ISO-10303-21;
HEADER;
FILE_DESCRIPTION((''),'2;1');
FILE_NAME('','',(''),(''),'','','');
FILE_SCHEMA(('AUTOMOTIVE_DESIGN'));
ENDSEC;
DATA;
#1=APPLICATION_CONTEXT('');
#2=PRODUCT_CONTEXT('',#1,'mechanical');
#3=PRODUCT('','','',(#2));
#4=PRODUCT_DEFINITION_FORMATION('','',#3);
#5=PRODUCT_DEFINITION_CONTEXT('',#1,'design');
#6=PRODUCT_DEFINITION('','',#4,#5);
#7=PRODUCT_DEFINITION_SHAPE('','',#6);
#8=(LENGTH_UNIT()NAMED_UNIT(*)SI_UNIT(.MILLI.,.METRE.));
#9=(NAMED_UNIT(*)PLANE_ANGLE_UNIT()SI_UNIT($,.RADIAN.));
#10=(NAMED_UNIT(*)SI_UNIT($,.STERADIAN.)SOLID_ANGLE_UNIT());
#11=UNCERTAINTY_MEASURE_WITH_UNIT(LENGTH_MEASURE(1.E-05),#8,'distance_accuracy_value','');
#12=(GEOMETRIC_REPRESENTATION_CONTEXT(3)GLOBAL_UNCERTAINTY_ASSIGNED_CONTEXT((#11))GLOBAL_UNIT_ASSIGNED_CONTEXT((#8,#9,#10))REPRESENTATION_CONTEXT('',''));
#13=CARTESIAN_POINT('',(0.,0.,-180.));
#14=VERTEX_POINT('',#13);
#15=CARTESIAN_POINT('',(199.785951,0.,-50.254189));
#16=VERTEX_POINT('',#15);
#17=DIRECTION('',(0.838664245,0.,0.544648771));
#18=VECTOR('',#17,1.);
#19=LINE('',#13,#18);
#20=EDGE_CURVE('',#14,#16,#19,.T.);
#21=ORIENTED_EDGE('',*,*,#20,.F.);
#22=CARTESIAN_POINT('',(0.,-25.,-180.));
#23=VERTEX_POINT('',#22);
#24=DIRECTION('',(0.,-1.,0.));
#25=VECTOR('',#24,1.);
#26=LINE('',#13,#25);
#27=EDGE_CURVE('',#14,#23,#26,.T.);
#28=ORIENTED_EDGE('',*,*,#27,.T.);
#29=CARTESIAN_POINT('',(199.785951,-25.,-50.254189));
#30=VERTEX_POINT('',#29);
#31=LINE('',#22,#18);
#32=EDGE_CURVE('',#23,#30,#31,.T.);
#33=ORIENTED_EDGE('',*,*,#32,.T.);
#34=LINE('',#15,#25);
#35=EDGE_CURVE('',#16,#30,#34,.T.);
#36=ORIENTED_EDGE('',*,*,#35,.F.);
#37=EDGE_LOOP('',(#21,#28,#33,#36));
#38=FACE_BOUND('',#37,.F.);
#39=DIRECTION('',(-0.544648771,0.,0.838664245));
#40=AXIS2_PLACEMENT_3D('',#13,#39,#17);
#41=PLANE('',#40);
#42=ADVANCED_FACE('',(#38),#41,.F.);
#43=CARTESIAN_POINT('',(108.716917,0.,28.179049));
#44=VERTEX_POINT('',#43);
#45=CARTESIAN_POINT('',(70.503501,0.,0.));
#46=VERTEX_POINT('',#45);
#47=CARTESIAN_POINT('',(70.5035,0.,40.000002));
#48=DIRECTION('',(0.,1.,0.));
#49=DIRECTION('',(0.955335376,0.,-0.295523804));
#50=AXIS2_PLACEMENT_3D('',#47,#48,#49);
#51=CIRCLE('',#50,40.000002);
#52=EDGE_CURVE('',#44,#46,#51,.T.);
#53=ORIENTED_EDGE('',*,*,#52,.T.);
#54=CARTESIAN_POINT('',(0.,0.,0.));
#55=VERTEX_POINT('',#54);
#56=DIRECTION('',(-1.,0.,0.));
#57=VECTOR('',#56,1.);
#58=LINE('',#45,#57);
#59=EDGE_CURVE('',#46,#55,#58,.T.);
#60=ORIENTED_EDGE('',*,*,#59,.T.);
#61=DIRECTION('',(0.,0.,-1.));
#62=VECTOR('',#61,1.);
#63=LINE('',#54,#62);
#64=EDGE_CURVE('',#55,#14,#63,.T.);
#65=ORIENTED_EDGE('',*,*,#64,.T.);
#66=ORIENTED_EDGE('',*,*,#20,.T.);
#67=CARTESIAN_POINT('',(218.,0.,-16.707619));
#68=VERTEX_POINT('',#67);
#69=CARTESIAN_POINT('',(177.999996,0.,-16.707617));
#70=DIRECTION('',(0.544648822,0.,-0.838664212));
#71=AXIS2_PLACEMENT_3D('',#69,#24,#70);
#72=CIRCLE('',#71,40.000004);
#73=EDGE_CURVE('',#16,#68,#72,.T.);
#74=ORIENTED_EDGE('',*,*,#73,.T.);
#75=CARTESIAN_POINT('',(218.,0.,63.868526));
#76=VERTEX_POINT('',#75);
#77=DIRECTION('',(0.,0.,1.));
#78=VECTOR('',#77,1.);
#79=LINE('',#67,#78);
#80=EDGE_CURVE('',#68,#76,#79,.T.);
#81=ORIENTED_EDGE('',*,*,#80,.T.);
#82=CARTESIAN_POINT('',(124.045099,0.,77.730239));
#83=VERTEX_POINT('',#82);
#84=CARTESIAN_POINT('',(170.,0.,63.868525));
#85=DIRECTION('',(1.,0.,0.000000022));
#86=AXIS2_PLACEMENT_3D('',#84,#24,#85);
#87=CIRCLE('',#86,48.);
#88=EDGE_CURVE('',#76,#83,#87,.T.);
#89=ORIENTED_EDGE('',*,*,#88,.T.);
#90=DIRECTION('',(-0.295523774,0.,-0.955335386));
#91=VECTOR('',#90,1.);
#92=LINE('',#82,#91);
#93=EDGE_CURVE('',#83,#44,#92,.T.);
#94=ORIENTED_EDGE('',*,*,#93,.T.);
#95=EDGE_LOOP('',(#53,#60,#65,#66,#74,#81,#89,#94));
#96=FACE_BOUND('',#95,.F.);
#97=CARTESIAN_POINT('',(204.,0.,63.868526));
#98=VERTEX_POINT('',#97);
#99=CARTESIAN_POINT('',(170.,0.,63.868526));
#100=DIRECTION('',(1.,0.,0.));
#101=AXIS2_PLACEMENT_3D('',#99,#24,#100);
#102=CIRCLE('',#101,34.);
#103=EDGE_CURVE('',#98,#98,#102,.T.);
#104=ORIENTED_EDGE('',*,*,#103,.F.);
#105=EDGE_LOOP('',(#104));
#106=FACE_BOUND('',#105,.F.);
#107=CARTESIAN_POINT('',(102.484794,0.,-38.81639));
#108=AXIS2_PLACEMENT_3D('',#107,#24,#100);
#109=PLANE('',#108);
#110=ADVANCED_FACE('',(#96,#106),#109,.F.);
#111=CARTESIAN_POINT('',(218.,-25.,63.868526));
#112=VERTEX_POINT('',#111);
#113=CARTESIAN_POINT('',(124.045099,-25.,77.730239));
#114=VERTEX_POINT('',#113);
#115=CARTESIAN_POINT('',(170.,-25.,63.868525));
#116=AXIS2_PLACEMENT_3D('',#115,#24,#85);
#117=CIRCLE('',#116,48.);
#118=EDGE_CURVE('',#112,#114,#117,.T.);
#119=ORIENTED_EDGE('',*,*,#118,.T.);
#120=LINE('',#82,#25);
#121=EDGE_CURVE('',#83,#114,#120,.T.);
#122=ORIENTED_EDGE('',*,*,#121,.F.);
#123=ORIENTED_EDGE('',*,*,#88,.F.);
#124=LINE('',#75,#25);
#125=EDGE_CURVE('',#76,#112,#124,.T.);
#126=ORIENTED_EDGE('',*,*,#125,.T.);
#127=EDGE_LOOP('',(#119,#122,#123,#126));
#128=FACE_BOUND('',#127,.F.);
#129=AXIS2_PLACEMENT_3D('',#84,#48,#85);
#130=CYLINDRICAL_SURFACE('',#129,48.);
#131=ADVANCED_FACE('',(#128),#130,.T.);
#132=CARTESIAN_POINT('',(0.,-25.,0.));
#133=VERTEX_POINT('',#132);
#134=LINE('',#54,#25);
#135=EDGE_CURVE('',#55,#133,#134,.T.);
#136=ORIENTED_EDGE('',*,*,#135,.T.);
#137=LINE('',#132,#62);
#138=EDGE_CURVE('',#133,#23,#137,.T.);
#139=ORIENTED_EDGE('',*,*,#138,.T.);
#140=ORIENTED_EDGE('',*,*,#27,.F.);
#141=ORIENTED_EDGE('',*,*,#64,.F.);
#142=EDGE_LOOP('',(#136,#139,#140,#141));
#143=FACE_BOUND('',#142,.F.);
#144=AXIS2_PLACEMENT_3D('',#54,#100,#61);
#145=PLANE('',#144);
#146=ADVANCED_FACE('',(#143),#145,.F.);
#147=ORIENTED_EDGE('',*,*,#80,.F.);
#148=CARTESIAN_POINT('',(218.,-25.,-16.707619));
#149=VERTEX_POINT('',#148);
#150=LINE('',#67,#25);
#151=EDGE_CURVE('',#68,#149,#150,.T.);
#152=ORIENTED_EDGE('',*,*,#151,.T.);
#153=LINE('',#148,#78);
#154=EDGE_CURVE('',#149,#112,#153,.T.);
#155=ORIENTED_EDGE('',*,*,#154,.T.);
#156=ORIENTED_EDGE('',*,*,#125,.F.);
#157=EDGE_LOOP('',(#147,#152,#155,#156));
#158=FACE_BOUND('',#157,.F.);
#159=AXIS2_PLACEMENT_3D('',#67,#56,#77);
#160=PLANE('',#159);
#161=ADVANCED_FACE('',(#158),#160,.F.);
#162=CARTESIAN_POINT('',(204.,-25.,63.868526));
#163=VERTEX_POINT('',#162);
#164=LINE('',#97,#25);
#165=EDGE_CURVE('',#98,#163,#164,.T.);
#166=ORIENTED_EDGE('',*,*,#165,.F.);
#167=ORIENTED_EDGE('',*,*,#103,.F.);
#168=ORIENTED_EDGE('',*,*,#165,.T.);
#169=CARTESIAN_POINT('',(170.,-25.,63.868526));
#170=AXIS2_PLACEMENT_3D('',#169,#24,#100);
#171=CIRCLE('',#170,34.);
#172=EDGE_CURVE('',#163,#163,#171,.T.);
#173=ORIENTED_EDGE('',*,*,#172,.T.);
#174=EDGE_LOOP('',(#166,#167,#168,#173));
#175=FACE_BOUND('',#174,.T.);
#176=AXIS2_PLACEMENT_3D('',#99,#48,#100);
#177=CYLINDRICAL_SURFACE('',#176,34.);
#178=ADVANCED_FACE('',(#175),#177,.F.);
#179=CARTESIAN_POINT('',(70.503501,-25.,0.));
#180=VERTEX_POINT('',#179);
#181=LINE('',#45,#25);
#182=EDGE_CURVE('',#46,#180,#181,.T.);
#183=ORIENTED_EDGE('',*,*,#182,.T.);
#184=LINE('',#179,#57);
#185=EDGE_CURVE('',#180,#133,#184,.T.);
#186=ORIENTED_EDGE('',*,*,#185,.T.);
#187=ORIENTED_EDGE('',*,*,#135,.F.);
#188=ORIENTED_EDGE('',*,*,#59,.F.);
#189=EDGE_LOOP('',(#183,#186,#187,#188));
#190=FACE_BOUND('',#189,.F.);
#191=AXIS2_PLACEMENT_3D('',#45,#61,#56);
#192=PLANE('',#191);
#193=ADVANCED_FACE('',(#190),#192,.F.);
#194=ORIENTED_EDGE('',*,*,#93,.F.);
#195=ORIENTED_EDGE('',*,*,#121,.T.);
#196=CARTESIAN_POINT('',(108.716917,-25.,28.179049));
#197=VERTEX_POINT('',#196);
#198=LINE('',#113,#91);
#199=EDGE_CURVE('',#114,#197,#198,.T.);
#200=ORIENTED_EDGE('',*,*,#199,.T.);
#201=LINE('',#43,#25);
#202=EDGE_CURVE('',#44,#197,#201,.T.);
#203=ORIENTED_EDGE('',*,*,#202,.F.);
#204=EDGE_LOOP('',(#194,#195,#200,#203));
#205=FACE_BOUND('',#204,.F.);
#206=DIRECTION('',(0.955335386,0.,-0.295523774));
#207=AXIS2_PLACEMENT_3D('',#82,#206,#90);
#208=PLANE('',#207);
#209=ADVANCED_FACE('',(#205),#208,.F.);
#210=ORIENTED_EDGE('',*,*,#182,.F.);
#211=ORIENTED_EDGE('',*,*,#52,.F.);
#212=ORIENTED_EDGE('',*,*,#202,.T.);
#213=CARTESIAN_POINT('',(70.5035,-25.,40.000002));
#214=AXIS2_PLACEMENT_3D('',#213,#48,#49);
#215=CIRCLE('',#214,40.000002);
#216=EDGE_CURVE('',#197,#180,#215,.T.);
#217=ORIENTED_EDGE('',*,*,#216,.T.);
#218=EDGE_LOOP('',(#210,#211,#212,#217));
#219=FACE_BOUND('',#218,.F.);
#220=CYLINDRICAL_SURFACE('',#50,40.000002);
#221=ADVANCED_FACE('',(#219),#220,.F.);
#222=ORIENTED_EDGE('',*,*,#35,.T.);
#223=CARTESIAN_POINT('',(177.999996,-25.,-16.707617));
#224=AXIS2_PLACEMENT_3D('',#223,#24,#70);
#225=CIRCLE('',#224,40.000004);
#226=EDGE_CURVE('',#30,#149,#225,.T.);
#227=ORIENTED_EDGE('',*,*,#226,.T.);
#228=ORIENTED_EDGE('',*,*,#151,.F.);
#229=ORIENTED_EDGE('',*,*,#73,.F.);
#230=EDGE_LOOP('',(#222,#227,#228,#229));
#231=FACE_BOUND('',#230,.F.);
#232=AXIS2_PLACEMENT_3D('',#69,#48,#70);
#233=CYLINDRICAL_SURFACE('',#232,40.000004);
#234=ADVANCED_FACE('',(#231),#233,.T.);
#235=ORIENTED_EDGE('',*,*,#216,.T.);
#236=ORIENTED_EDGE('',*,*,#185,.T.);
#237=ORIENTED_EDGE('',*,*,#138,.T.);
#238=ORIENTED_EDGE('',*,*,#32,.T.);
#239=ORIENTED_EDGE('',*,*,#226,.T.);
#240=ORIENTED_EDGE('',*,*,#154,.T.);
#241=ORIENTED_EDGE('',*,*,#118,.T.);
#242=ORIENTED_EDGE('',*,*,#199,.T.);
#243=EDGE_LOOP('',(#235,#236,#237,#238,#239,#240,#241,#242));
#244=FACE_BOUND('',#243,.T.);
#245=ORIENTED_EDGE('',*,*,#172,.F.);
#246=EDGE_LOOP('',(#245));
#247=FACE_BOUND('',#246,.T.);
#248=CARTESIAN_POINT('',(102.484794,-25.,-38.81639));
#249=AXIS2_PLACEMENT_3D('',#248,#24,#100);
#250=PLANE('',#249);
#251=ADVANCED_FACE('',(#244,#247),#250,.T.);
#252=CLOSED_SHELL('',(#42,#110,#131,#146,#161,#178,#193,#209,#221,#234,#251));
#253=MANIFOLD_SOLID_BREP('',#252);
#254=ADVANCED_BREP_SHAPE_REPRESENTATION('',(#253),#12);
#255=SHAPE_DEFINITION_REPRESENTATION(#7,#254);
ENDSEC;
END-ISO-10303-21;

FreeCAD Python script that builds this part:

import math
import FreeCAD as App
import Part
import Sketcher
from FreeCAD import Vector

doc = App.newDocument("Part")
body = doc.addObject("PartDesign::Body", "Body")

sketch1 = doc.addObject("Sketcher::SketchObject", "Sketch")
body.addObject(sketch1)
sketch1.AttachmentSupport = (doc.XZ_Plane, [""])
sketch1.MapMode = "FlatFace"
sketch1.addGeometry(Part.LineSegment(Vector(71, 0, 0), Vector(0, 0, 0)), False)
sketch1.addGeometry(Part.LineSegment(Vector(0, 0, 0), Vector(0, -180, 0)), False)
sketch1.addGeometry(Part.LineSegment(Vector(0, -180, 0), Vector(200, -50, 0)), False)
sketch1.addGeometry(Part.ArcOfCircle(Part.Circle(Vector(178, -17, 0), Vector(0, 0, 1), 40), math.radians(-57), math.radians(0)), False)
sketch1.addGeometry(Part.LineSegment(Vector(218, -17, 0), Vector(218, 64, 0)), False)
sketch1.addGeometry(Part.ArcOfCircle(Part.Circle(Vector(170, 64, 0), Vector(0, 0, 1), 48), math.radians(0), math.radians(163)), False)
sketch1.addGeometry(Part.LineSegment(Vector(124, 78, 0), Vector(109, 28, 0)), False)
sketch1.addGeometry(Part.ArcOfCircle(Part.Circle(Vector(71, 40, 0), Vector(0, 0, 1), 40), math.radians(-90), math.radians(-17)), False)
sketch1.addGeometry(Part.Circle(Vector(170, 64, 0), Vector(0, 0, 1), 34), False)
sketch1.addConstraint(Sketcher.Constraint("Coincident", 0, 2, 1, 1))
sketch1.addConstraint(Sketcher.Constraint("Coincident", 1, 2, 2, 1))
sketch1.addConstraint(Sketcher.Constraint("Tangent", 2, 2, 3, 1))
sketch1.addConstraint(Sketcher.Constraint("Tangent", 3, 2, 4, 1))
sketch1.addConstraint(Sketcher.Constraint("Tangent", 4, 2, 5, 1))
sketch1.addConstraint(Sketcher.Constraint("Coincident", 5, 2, 6, 1))
sketch1.addConstraint(Sketcher.Constraint("Tangent", 6, 2, 7, 2))
sketch1.addConstraint(Sketcher.Constraint("Tangent", 7, 1, 0, 1))
sketch1.addConstraint(Sketcher.Constraint("Horizontal", 0))
sketch1.addConstraint(Sketcher.Constraint("Vertical", 1))
sketch1.addConstraint(Sketcher.Constraint("Vertical", 4))
sketch1.addConstraint(Sketcher.Constraint("Coincident", 0, 2, -1, 1))
sketch1.addConstraint(Sketcher.Constraint("Coincident", 8, 3, 5, 3))
sketch1.addConstraint(Sketcher.Constraint("Diameter", 8, 68.0))
sketch1.addConstraint(Sketcher.Constraint("Radius", 5, 48.0))
sketch1.addConstraint(Sketcher.Constraint("Radius", 7, 40.000002))
sketch1.addConstraint(Sketcher.Constraint("DistanceY", 1, 2, 1, 1, 180.0))
sketch1.addConstraint(Sketcher.Constraint("DistanceX", -1, 1, 5, 3, 170.0))
sketch1.addConstraint(Sketcher.Constraint("DistanceX", 0, 2, 0, 1, 70.503501))
sketch1.addConstraint(Sketcher.Constraint("Radius", 3, 40.000004))
sketch1.addConstraint(Sketcher.Constraint("DistanceX", -1, 1, 5, 2, 124.045099))
sketch1.addConstraint(Sketcher.Constraint("Distance", 2, 238.21923))
sketch1.addConstraint(Sketcher.Constraint("DistanceY", 4, 1, 4, 2, 80.576145))
pad1 = doc.addObject("PartDesign::Pad", "Pad")
body.addObject(pad1)
pad1.Profile = sketch1
pad1.Length = 25

sketch2 = doc.addObject("Sketcher::SketchObject", "Sketch001")
body.addObject(sketch2)
sketch2.AttachmentSupport = (doc.XZ_Plane, [""])
sketch2.MapMode = "FlatFace"
sketch2.addGeometry(Part.LineSegment(Vector(71, 0, 0), Vector(0, 0, 0)), False)
sketch2.addGeometry(Part.LineSegment(Vector(0, 0, 0), Vector(0, -180, 0)), False)
sketch2.addGeometry(Part.LineSegment(Vector(0, -180, 0), Vector(200, -50, 0)), False)
sketch2.addGeometry(Part.ArcOfCircle(Part.Circle(Vector(178, -17, 0), Vector(0, 0, 1), 40), math.radians(-57), math.radians(0)), False)
sketch2.addGeometry(Part.LineSegment(Vector(218, -17, 0), Vector(218, 64, 0)), False)
sketch2.addGeometry(Part.ArcOfCircle(Part.Circle(Vector(170, 64, 0), Vector(0, 0, 1), 48), math.radians(0), math.radians(163)), False)
sketch2.addGeometry(Part.LineSegment(Vector(124, 78, 0), Vector(109, 28, 0)), False)
sketch2.addGeometry(Part.ArcOfCircle(Part.Circle(Vector(71, 40, 0), Vector(0, 0, 1), 40), math.radians(-90), math.radians(-17)), False)
sketch2.addGeometry(Part.Circle(Vector(170, 64, 0), Vector(0, 0, 1), 34), False)
sketch2.addConstraint(Sketcher.Constraint("Coincident", 0, 2, 1, 1))
sketch2.addConstraint(Sketcher.Constraint("Coincident", 1, 2, 2, 1))
sketch2.addConstraint(Sketcher.Constraint("Tangent", 2, 2, 3, 1))
sketch2.addConstraint(Sketcher.Constraint("Tangent", 3, 2, 4, 1))
sketch2.addConstraint(Sketcher.Constraint("Tangent", 4, 2, 5, 1))
sketch2.addConstraint(Sketcher.Constraint("Coincident", 5, 2, 6, 1))
sketch2.addConstraint(Sketcher.Constraint("Tangent", 6, 2, 7, 2))
sketch2.addConstraint(Sketcher.Constraint("Tangent", 7, 1, 0, 1))
sketch2.addConstraint(Sketcher.Constraint("Horizontal", 0))
sketch2.addConstraint(Sketcher.Constraint("Vertical", 1))
sketch2.addConstraint(Sketcher.Constraint("Vertical", 4))
sketch2.addConstraint(Sketcher.Constraint("Coincident", 0, 2, -1, 1))
sketch2.addConstraint(Sketcher.Constraint("Coincident", 8, 3, 5, 3))
sketch2.addConstraint(Sketcher.Constraint("Diameter", 8, 68.0))
sketch2.addConstraint(Sketcher.Constraint("Radius", 5, 48.0))
sketch2.addConstraint(Sketcher.Constraint("Radius", 7, 40.000002))
sketch2.addConstraint(Sketcher.Constraint("DistanceY", 1, 2, 1, 1, 180.0))
sketch2.addConstraint(Sketcher.Constraint("DistanceX", -1, 1, 5, 3, 170.0))
sketch2.addConstraint(Sketcher.Constraint("DistanceX", 0, 2, 0, 1, 70.503501))
sketch2.addConstraint(Sketcher.Constraint("Radius", 3, 40.000004))
sketch2.addConstraint(Sketcher.Constraint("DistanceX", -1, 1, 5, 2, 124.045099))
sketch2.addConstraint(Sketcher.Constraint("Distance", 2, 238.21923))
sketch2.addConstraint(Sketcher.Constraint("DistanceY", 4, 1, 4, 2, 80.576145))
pad2 = doc.addObject("PartDesign::Pad", "Pad001")
body.addObject(pad2)
pad2.Profile = sketch2
pad2.Length = 25

doc.recompute()
